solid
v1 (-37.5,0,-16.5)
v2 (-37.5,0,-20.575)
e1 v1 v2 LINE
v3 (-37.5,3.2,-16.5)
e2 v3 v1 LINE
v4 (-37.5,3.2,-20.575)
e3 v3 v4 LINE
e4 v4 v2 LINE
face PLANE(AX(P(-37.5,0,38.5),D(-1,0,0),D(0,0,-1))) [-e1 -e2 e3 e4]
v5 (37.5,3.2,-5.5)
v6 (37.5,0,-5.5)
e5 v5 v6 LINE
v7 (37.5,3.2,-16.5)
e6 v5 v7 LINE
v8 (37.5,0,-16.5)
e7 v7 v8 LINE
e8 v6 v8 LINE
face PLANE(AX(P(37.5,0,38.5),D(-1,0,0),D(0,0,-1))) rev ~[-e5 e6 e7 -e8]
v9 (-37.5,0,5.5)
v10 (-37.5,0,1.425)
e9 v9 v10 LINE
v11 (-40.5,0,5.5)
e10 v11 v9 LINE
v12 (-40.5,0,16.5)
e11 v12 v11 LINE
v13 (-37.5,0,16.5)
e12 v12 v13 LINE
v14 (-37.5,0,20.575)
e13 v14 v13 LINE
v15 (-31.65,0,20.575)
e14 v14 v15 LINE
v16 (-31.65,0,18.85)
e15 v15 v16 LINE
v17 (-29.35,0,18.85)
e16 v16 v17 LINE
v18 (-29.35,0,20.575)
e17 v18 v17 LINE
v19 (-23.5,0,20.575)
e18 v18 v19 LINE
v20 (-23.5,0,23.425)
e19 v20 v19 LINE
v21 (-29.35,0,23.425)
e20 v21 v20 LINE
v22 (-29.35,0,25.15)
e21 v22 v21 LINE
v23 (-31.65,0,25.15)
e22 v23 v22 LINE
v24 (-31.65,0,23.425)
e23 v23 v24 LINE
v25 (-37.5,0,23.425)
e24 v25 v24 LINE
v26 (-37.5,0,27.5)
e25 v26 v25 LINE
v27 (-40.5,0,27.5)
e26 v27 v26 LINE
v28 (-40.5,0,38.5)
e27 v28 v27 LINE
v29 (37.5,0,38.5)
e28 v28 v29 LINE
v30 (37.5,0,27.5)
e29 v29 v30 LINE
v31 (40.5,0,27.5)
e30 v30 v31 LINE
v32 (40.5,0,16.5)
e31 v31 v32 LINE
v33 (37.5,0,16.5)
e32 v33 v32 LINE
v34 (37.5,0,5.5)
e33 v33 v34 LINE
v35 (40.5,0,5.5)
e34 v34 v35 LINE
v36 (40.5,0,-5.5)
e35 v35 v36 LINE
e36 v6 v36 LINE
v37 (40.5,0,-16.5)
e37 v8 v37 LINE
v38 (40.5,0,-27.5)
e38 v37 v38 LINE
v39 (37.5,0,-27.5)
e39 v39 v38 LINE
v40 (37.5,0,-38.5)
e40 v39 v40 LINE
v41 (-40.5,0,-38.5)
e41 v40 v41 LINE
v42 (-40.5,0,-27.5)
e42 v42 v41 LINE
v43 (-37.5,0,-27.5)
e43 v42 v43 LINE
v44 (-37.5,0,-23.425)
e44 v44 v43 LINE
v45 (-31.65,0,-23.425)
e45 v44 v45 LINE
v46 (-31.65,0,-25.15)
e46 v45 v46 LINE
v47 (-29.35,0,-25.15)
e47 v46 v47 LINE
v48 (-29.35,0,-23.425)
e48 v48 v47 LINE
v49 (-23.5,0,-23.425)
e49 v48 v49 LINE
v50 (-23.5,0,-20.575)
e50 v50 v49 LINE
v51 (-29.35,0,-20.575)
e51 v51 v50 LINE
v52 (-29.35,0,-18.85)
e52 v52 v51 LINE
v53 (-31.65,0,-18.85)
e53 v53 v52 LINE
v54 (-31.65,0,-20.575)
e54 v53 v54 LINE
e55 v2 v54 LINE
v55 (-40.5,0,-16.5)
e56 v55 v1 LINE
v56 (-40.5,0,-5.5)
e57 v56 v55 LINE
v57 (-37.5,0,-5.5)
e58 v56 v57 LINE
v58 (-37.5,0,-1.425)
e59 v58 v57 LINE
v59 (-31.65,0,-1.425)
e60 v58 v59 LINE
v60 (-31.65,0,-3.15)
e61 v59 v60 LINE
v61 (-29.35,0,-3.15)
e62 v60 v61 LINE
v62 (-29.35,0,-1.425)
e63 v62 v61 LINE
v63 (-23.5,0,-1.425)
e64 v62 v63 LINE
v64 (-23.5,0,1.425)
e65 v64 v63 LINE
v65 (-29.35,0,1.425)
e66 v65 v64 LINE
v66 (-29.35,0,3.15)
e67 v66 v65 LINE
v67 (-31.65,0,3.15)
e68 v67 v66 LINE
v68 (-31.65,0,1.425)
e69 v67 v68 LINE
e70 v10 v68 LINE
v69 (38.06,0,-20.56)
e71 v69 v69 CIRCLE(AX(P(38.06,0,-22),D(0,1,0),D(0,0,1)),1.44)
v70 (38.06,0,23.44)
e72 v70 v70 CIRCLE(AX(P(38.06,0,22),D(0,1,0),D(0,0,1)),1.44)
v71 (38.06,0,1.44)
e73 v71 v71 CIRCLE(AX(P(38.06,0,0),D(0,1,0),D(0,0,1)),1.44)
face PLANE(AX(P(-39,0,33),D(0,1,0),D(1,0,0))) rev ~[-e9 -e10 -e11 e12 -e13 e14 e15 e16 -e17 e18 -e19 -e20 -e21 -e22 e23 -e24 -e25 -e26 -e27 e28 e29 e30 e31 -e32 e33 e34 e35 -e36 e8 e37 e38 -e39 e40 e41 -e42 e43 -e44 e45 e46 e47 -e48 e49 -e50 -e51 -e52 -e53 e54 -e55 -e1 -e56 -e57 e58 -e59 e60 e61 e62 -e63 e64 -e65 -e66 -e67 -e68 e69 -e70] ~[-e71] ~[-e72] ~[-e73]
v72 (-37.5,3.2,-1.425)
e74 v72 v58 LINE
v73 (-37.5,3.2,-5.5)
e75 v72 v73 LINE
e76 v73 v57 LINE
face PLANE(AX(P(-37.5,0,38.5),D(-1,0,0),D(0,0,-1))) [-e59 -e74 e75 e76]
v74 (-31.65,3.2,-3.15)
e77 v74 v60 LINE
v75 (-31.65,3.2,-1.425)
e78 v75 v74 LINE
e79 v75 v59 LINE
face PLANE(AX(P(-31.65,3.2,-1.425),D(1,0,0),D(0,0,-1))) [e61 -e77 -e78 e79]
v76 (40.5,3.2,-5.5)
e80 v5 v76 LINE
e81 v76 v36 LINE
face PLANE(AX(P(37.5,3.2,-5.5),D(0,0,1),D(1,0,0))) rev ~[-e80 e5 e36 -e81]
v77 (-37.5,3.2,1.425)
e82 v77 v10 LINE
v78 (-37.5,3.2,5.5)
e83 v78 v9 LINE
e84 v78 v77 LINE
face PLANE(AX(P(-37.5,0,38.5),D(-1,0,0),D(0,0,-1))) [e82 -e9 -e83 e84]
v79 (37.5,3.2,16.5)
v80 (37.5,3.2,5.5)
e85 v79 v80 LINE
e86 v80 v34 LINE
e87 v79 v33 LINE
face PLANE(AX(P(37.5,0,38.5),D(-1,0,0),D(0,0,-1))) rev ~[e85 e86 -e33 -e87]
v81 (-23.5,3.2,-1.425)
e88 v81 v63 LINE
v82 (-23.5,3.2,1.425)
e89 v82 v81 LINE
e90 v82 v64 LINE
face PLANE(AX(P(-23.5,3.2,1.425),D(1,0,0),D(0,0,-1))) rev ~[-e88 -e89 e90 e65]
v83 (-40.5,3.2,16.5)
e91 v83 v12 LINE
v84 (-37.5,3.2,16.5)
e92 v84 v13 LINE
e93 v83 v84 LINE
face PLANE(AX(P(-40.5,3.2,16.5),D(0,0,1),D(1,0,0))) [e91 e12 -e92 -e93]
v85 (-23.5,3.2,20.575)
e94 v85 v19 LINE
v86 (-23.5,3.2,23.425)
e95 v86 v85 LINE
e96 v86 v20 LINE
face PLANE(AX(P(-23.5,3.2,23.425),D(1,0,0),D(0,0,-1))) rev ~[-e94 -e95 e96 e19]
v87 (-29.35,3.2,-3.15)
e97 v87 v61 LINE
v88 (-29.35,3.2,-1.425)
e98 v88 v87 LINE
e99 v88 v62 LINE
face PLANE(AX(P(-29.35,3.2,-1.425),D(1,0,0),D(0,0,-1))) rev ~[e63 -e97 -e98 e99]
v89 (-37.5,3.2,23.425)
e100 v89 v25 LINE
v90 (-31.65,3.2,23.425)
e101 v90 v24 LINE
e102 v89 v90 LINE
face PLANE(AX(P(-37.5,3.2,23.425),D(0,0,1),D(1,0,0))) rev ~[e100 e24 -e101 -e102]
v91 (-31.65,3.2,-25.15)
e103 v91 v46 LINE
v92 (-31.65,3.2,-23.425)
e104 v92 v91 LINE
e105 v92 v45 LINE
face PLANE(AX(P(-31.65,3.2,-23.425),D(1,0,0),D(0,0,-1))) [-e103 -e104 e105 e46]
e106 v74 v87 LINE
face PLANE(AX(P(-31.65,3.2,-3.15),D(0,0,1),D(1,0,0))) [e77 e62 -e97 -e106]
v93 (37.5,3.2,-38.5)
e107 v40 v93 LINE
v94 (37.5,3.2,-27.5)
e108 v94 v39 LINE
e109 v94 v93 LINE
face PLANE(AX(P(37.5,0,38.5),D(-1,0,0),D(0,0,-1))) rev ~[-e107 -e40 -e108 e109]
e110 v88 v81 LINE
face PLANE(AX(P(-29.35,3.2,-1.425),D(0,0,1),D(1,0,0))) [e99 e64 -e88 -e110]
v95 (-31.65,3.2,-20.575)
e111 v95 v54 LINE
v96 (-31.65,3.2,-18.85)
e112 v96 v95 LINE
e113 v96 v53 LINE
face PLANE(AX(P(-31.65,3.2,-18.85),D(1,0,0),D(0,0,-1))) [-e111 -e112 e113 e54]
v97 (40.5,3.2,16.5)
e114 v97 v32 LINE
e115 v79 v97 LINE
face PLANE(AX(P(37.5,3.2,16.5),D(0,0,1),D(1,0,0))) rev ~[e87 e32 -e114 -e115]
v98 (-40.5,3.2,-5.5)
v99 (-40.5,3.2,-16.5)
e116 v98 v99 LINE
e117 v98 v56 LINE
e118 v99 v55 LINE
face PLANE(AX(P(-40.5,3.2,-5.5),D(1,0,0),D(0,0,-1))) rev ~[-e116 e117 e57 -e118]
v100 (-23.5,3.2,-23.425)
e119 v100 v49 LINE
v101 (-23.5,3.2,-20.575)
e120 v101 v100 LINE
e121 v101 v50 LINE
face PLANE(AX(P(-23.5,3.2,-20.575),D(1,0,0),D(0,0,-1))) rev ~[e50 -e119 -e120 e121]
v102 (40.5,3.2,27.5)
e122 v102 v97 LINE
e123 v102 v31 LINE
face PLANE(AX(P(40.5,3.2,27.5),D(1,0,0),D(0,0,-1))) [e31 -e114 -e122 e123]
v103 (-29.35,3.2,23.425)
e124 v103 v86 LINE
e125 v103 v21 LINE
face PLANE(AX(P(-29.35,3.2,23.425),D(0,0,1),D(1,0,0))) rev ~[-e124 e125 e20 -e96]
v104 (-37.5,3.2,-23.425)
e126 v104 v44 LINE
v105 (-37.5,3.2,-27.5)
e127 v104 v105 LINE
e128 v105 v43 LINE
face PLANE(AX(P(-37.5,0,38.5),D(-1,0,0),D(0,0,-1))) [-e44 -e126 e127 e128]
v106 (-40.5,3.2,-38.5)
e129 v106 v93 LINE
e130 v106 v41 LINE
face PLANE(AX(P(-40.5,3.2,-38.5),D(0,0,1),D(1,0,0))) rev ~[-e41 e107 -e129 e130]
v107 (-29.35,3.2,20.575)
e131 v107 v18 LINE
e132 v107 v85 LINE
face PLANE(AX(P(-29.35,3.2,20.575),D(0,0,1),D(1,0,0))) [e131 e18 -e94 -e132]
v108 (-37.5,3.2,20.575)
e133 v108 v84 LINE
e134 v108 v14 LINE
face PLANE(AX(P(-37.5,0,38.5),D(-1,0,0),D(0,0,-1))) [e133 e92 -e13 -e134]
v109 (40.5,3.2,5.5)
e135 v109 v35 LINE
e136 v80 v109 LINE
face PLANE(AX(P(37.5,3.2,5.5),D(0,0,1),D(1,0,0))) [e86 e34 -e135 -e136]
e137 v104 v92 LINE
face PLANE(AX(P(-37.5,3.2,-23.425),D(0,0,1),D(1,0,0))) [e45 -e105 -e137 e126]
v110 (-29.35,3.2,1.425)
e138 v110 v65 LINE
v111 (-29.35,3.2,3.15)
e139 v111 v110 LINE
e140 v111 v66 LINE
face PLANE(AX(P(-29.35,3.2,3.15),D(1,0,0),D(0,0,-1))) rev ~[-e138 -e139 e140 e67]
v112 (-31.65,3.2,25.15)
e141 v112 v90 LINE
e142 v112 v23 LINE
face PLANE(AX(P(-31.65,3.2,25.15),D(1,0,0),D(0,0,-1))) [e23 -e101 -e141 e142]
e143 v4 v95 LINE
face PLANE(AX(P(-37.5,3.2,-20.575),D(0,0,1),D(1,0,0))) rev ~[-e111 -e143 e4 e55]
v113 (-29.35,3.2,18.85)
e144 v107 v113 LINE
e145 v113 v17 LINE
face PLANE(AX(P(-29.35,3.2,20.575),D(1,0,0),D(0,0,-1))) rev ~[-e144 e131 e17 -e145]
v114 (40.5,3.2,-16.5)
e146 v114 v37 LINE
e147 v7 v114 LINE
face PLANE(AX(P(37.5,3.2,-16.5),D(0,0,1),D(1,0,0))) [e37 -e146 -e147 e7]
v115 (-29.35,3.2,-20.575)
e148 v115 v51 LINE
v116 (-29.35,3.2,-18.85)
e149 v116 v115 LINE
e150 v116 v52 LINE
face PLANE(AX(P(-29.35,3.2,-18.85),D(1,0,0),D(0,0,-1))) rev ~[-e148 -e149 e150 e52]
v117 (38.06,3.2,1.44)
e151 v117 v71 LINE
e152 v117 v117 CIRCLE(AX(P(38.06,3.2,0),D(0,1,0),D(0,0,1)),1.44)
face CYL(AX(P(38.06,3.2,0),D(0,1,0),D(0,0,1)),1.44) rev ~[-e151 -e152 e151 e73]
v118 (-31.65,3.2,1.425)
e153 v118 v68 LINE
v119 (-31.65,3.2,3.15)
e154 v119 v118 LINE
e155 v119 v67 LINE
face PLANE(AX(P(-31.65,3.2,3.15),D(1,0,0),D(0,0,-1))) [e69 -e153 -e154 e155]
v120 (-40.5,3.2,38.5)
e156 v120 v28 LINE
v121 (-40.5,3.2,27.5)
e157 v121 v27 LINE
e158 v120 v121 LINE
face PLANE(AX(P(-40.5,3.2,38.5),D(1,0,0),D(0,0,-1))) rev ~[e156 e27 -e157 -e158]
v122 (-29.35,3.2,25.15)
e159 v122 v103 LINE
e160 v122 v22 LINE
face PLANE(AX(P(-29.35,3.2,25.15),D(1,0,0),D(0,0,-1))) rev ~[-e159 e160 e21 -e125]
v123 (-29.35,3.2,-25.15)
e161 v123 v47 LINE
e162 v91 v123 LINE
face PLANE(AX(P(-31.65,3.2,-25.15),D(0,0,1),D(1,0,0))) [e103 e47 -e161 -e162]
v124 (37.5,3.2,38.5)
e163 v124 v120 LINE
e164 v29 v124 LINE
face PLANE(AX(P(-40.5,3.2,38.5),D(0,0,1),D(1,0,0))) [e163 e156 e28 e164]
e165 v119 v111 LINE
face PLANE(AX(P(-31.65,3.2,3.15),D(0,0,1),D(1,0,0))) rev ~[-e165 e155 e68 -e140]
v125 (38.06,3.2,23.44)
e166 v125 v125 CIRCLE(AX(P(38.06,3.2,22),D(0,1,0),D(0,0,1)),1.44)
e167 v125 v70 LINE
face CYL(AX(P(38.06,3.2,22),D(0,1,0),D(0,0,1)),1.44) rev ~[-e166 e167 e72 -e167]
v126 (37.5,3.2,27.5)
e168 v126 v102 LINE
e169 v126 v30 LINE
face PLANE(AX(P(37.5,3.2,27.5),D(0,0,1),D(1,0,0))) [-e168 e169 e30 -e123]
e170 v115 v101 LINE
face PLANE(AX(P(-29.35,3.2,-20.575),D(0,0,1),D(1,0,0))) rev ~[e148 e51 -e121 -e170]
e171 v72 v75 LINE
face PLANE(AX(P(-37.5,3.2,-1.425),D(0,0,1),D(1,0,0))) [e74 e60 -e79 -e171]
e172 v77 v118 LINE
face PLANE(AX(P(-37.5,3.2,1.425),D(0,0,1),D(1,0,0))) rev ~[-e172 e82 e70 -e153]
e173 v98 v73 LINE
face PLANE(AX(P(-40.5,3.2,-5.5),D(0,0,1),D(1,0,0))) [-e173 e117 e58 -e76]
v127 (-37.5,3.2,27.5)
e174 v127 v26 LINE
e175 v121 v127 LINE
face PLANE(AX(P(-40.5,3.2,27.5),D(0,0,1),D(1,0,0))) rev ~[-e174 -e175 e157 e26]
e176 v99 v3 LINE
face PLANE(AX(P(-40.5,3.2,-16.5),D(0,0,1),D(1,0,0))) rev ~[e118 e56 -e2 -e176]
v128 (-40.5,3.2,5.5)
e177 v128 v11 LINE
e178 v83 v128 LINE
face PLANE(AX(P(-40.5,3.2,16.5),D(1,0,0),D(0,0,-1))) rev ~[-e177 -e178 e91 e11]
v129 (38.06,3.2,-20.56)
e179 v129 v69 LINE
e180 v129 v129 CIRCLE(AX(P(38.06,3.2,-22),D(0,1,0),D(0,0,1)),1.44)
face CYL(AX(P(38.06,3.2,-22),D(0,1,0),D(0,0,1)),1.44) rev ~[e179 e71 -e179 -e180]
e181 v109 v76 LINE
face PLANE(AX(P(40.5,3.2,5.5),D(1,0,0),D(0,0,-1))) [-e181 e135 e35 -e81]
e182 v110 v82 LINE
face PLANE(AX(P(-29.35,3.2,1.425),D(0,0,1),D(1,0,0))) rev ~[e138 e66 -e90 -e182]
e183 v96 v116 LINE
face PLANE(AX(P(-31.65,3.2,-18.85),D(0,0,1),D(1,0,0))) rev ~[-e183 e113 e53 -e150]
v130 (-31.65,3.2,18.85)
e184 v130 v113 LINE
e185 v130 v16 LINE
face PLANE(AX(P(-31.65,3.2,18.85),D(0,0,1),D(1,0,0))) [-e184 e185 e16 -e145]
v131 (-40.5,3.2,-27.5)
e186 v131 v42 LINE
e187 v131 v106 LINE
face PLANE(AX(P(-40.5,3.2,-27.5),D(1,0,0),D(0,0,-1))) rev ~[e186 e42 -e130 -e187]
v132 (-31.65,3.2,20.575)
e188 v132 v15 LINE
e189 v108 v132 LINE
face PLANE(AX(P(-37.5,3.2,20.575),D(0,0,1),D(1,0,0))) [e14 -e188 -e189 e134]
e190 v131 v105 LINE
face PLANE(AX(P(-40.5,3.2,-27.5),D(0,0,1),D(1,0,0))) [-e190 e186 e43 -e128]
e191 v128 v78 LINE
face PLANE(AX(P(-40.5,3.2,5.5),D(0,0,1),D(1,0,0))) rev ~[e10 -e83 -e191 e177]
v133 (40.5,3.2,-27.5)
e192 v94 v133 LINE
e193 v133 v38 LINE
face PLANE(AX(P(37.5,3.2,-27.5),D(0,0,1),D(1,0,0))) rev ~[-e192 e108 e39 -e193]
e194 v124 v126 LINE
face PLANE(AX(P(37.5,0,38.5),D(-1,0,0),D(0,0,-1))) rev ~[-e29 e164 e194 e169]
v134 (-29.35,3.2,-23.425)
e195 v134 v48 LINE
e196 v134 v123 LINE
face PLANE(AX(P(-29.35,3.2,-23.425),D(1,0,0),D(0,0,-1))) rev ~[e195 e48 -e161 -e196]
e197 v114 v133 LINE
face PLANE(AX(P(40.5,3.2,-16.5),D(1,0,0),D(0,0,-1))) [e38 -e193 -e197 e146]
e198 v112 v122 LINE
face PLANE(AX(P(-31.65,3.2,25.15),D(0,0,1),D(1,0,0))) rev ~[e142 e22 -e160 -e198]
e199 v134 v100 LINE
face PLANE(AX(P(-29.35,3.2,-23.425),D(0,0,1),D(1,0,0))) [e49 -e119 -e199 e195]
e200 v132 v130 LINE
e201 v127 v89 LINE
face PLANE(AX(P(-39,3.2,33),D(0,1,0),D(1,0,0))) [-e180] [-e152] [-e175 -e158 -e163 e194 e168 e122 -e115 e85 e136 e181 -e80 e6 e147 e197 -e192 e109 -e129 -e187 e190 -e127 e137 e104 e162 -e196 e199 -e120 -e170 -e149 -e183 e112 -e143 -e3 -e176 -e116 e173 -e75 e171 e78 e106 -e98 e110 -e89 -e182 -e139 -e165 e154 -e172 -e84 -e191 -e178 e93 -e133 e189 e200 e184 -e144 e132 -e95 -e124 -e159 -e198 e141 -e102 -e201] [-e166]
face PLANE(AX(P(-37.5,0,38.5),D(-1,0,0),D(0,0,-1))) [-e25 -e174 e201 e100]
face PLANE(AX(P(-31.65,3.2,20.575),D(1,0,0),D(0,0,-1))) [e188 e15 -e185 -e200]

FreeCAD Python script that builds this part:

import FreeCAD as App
import Part
import Sketcher
from FreeCAD import Vector
Q = App.Units.Quantity


def add_polygon(sketch, points):
    """Adds a closed chain of lines whose ends are joined by coincident constraints."""
    first, n = sketch.GeometryCount, len(points)
    for a, b in zip(points, points[1:] + points[:1]):
        sketch.addGeometry(Part.LineSegment(App.Vector(*a, 0), App.Vector(*b, 0)), False)
    for i in range(n):
        sketch.addConstraint(Sketcher.Constraint("Coincident", first + i, 2, first + (i + 1) % n, 1))

doc = App.newDocument("Part")
params = doc.addObject("Spreadsheet::Sheet", "Params")
for row, (alias, value) in enumerate([
    ("sketch1_width", "75 mm"),
    ("sketch1_height", "77 mm"),
    ("pad1_length", "3.2 mm"),
    ("sketch2_width", "3 mm"),
    ("sketch2_height", "11 mm"),
    ("pad2_length", "3.2 mm"),
    ("linearpattern_pitch", "22 mm"),
    ("sketch3_width", "2.3 mm"),
    ("sketch3_height", "2.85 mm"),
    ("linearpattern2_pitch", "22 mm"),
    ("sketch4_width", "3 mm"),
    ("sketch4_height", "11 mm"),
    ("pad3_length", "3.2 mm"),
    ("sketch5_diameter", "2.88 mm"),
    ("linearpattern3_pitch", "22 mm"),
    ("linearpattern4_pitch", "22 mm"),
], start=1):
    params.set(f"A{row}", alias)
    params.set(f"B{row}", "=" + value)
    params.setAlias(f"B{row}", alias)

body = doc.addObject("PartDesign::Body", "Body")

# Sketch on XZ plane
sketch1 = body.newObject("Sketcher::SketchObject", "Sketch")
sketch1.AttachmentSupport = (doc.getObject("XZ_Plane"), [""])
sketch1.MapMode = "FlatFace"
add_polygon(sketch1, [(-38, -38), (-38, 38), (38, 38), (38, -38)])  # lines 0-3
sketch1.addConstraint(Sketcher.Constraint("Vertical", 0))
sketch1.addConstraint(Sketcher.Constraint("Horizontal", 1))
sketch1.addConstraint(Sketcher.Constraint("Vertical", 2))
sketch1.addConstraint(Sketcher.Constraint("Horizontal", 3))
sketch1.addConstraint(Sketcher.Constraint("Symmetric", 0, 2, 2, 2, -1, 1))
sketch1.addConstraint(Sketcher.Constraint("DistanceX", 1, 1, 1, 2, Q("75 mm")))
sketch1.addConstraint(Sketcher.Constraint("DistanceY", 0, 1, 0, 2, Q("77 mm")))
sketch1.setExpression("Constraints[9]", "Params.sketch1_width")
sketch1.setExpression("Constraints[10]", "Params.sketch1_height")
pad1 = body.newObject("PartDesign::Pad", "Pad")
pad1.Profile = sketch1
pad1.setExpression("Length", "Params.pad1_length")
pad1.Reversed = True

# Sketch on XZ plane
sketch2 = body.newObject("Sketcher::SketchObject", "Sketch001")
sketch2.AttachmentSupport = (doc.getObject("XZ_Plane"), [""])
sketch2.MapMode = "FlatFace"
sketch2.AttachmentOffset = App.Placement(Vector(0, 0, -3.2), App.Rotation())
add_polygon(sketch2, [(-40.5, -38.5), (-40.5, -27.5), (-37.5, -27.5), (-37.5, -38.5)])  # lines 0-3
sketch2.addConstraint(Sketcher.Constraint("Vertical", 0))
sketch2.addConstraint(Sketcher.Constraint("Horizontal", 1))
sketch2.addConstraint(Sketcher.Constraint("Vertical", 2))
sketch2.addConstraint(Sketcher.Constraint("Horizontal", 3))
sketch2.addConstraint(Sketcher.Constraint("DistanceX", 1, 1, 1, 2, Q("3 mm")))
sketch2.addConstraint(Sketcher.Constraint("DistanceY", 0, 1, 0, 2, Q("11 mm")))
sketch2.addConstraint(Sketcher.Constraint("DistanceX", 0, 2, -1, 1, Q("40.5 mm")))
sketch2.addConstraint(Sketcher.Constraint("DistanceY", 0, 2, -1, 1, Q("27.5 mm")))
sketch2.setExpression("Constraints[8]", "Params.sketch2_width")
sketch2.setExpression("Constraints[9]", "Params.sketch2_height")
pad2 = body.newObject("PartDesign::Pad", "Pad001")
pad2.Profile = sketch2
pad2.setExpression("Length", "Params.pad2_length")
doc.recompute()

linearpattern = body.newObject("PartDesign::LinearPattern", "LinearPattern")
linearpattern.Originals = [pad2]
linearpattern.Direction = (doc.getObject("Z_Axis"), [""])
linearpattern.Mode = "offset"
linearpattern.setExpression("Offset", "Params.linearpattern_pitch")
linearpattern.Occurrences = 4
body.Tip = linearpattern

# Sketch on XZ plane
sketch3 = body.newObject("Sketcher::SketchObject", "Sketch002")
sketch3.AttachmentSupport = (doc.getObject("XZ_Plane"), [""])
sketch3.MapMode = "FlatFace"
sketch3.AttachmentOffset = App.Placement(Vector(0, 0, -3.2), App.Rotation())
add_polygon(sketch3, [(-37.5, -23.4), (-37.5, -20.6), (-31.6, -20.6), (-31.6, -18.9), (-29.4, -18.9), (-29.4, -20.6), (-23.5, -20.6), (-23.5, -23.4), (-29.4, -23.4), (-29.4, -25.1), (-31.6, -25.1), (-31.6, -23.4)])  # lines 0-11
sketch3.addConstraint(Sketcher.Constraint("Vertical", 0))
sketch3.addConstraint(Sketcher.Constraint("Horizontal", 1))
sketch3.addConstraint(Sketcher.Constraint("Vertical", 2))
sketch3.addConstraint(Sketcher.Constraint("Horizontal", 3))
sketch3.addConstraint(Sketcher.Constraint("Vertical", 4))
sketch3.addConstraint(Sketcher.Constraint("Horizontal", 5))
sketch3.addConstraint(Sketcher.Constraint("Vertical", 6))
sketch3.addConstraint(Sketcher.Constraint("Horizontal", 7))
sketch3.addConstraint(Sketcher.Constraint("Vertical", 8))
sketch3.addConstraint(Sketcher.Constraint("Horizontal", 9))
sketch3.addConstraint(Sketcher.Constraint("Vertical", 10))
sketch3.addConstraint(Sketcher.Constraint("Horizontal", 11))
sketch3.addConstraint(Sketcher.Constraint("Horizontal", 1, 2, 4, 2))
sketch3.addConstraint(Sketcher.Constraint("Horizontal", 7, 2, 10, 2))
sketch3.addConstraint(Sketcher.Constraint("Vertical", 4, 2, 7, 2))
sketch3.addConstraint(Sketcher.Constraint("Vertical", 2, 2, 9, 2))
sketch3.addConstraint(Sketcher.Constraint("Equal", 1, 5))
sketch3.addConstraint(Sketcher.Constraint("Equal", 4, 8))
sketch3.addConstraint(Sketcher.Constraint("DistanceX", 3, 1, 3, 2, Q("2.3 mm")))
sketch3.addConstraint(Sketcher.Constraint("DistanceX", 0, 2, 5, 2, Q("14 mm")))
sketch3.addConstraint(Sketcher.Constraint("DistanceY", 0, 1, 0, 2, Q("2.85 mm")))
sketch3.addConstraint(Sketcher.Constraint("DistanceX", 0, 2, -1, 1, Q("37.5 mm")))
sketch3.addConstraint(Sketcher.Constraint("DistanceY", 8, 2, 3, 2, Q("6.3 mm")))
sketch3.addConstraint(Sketcher.Constraint("DistanceY", 2, 2, -1, 1, Q("18.85 mm")))
sketch3.setExpression("Constraints[30]", "Params.sketch3_width")
sketch3.setExpression("Constraints[32]", "Params.sketch3_height")
pocket1 = body.newObject("PartDesign::Pocket", "Pocket")
pocket1.Profile = sketch3
pocket1.Type = "ThroughAll"
pocket1.Reversed = True
doc.recompute()

linearpattern2 = body.newObject("PartDesign::LinearPattern", "LinearPattern001")
linearpattern2.Originals = [pocket1]
linearpattern2.Direction = (doc.getObject("Z_Axis"), [""])
linearpattern2.Mode = "offset"
linearpattern2.setExpression("Offset", "Params.linearpattern2_pitch")
linearpattern2.Occurrences = 3
body.Tip = linearpattern2

# Sketch on XZ plane
sketch4 = body.newObject("Sketcher::SketchObject", "Sketch003")
sketch4.AttachmentSupport = (doc.getObject("XZ_Plane"), [""])
sketch4.MapMode = "FlatFace"
sketch4.AttachmentOffset = App.Placement(Vector(0, 0, -3.2), App.Rotation())
add_polygon(sketch4, [(37.5, -27.5), (37.5, -16.5), (40.5, -16.5), (40.5, -27.5)])  # lines 0-3
sketch4.addConstraint(Sketcher.Constraint("Vertical", 0))
sketch4.addConstraint(Sketcher.Constraint("Horizontal", 1))
sketch4.addConstraint(Sketcher.Constraint("Vertical", 2))
sketch4.addConstraint(Sketcher.Constraint("Horizontal", 3))
sketch4.addConstraint(Sketcher.Constraint("DistanceX", 1, 1, 1, 2, Q("3 mm")))
sketch4.addConstraint(Sketcher.Constraint("DistanceY", 0, 1, 0, 2, Q("11 mm")))
sketch4.addConstraint(Sketcher.Constraint("DistanceX", -1, 1, 0, 2, Q("37.5 mm")))
sketch4.addConstraint(Sketcher.Constraint("DistanceY", 0, 2, -1, 1, Q("16.5 mm")))
sketch4.setExpression("Constraints[8]", "Params.sketch4_width")
sketch4.setExpression("Constraints[9]", "Params.sketch4_height")
pad3 = body.newObject("PartDesign::Pad", "Pad002")
pad3.Profile = sketch4
pad3.setExpression("Length", "Params.pad3_length")

# Sketch on XZ plane
sketch5 = body.newObject("Sketcher::SketchObject", "Sketch004")
sketch5.AttachmentSupport = (doc.getObject("XZ_Plane"), [""])
sketch5.MapMode = "FlatFace"
sketch5.AttachmentOffset = App.Placement(Vector(0, 0, -3.2), App.Rotation())
sketch5.addGeometry(Part.Circle(Vector(38.1, -22, 0), Vector(0, 0, 1), 1.4), False)
sketch5.addConstraint(Sketcher.Constraint("Diameter", 0, Q("2.88 mm")))
sketch5.addConstraint(Sketcher.Constraint("DistanceY", 0, 3, -1, 1, Q("22 mm")))
sketch5.addConstraint(Sketcher.Constraint("DistanceX", -1, 1, 0, 3, Q("38.06 mm")))
sketch5.setExpression("Constraints[0]", "Params.sketch5_diameter")
pocket2 = body.newObject("PartDesign::Pocket", "Pocket001")
pocket2.Profile = sketch5
pocket2.Type = "ThroughAll"
pocket2.Reversed = True
doc.recompute()

linearpattern3 = body.newObject("PartDesign::LinearPattern", "LinearPattern002")
linearpattern3.Originals = [pad3]
linearpattern3.Direction = (doc.getObject("Z_Axis"), [""])
linearpattern3.Mode = "offset"
linearpattern3.setExpression("Offset", "Params.linearpattern3_pitch")
linearpattern3.Occurrences = 3
body.Tip = linearpattern3
doc.recompute()

linearpattern4 = body.newObject("PartDesign::LinearPattern", "LinearPattern003")
linearpattern4.Originals = [pocket2]
linearpattern4.Direction = (doc.getObject("Z_Axis"), [""])
linearpattern4.Mode = "offset"
linearpattern4.setExpression("Offset", "Params.linearpattern4_pitch")
linearpattern4.Occurrences = 3
body.Tip = linearpattern4

doc.recompute()
